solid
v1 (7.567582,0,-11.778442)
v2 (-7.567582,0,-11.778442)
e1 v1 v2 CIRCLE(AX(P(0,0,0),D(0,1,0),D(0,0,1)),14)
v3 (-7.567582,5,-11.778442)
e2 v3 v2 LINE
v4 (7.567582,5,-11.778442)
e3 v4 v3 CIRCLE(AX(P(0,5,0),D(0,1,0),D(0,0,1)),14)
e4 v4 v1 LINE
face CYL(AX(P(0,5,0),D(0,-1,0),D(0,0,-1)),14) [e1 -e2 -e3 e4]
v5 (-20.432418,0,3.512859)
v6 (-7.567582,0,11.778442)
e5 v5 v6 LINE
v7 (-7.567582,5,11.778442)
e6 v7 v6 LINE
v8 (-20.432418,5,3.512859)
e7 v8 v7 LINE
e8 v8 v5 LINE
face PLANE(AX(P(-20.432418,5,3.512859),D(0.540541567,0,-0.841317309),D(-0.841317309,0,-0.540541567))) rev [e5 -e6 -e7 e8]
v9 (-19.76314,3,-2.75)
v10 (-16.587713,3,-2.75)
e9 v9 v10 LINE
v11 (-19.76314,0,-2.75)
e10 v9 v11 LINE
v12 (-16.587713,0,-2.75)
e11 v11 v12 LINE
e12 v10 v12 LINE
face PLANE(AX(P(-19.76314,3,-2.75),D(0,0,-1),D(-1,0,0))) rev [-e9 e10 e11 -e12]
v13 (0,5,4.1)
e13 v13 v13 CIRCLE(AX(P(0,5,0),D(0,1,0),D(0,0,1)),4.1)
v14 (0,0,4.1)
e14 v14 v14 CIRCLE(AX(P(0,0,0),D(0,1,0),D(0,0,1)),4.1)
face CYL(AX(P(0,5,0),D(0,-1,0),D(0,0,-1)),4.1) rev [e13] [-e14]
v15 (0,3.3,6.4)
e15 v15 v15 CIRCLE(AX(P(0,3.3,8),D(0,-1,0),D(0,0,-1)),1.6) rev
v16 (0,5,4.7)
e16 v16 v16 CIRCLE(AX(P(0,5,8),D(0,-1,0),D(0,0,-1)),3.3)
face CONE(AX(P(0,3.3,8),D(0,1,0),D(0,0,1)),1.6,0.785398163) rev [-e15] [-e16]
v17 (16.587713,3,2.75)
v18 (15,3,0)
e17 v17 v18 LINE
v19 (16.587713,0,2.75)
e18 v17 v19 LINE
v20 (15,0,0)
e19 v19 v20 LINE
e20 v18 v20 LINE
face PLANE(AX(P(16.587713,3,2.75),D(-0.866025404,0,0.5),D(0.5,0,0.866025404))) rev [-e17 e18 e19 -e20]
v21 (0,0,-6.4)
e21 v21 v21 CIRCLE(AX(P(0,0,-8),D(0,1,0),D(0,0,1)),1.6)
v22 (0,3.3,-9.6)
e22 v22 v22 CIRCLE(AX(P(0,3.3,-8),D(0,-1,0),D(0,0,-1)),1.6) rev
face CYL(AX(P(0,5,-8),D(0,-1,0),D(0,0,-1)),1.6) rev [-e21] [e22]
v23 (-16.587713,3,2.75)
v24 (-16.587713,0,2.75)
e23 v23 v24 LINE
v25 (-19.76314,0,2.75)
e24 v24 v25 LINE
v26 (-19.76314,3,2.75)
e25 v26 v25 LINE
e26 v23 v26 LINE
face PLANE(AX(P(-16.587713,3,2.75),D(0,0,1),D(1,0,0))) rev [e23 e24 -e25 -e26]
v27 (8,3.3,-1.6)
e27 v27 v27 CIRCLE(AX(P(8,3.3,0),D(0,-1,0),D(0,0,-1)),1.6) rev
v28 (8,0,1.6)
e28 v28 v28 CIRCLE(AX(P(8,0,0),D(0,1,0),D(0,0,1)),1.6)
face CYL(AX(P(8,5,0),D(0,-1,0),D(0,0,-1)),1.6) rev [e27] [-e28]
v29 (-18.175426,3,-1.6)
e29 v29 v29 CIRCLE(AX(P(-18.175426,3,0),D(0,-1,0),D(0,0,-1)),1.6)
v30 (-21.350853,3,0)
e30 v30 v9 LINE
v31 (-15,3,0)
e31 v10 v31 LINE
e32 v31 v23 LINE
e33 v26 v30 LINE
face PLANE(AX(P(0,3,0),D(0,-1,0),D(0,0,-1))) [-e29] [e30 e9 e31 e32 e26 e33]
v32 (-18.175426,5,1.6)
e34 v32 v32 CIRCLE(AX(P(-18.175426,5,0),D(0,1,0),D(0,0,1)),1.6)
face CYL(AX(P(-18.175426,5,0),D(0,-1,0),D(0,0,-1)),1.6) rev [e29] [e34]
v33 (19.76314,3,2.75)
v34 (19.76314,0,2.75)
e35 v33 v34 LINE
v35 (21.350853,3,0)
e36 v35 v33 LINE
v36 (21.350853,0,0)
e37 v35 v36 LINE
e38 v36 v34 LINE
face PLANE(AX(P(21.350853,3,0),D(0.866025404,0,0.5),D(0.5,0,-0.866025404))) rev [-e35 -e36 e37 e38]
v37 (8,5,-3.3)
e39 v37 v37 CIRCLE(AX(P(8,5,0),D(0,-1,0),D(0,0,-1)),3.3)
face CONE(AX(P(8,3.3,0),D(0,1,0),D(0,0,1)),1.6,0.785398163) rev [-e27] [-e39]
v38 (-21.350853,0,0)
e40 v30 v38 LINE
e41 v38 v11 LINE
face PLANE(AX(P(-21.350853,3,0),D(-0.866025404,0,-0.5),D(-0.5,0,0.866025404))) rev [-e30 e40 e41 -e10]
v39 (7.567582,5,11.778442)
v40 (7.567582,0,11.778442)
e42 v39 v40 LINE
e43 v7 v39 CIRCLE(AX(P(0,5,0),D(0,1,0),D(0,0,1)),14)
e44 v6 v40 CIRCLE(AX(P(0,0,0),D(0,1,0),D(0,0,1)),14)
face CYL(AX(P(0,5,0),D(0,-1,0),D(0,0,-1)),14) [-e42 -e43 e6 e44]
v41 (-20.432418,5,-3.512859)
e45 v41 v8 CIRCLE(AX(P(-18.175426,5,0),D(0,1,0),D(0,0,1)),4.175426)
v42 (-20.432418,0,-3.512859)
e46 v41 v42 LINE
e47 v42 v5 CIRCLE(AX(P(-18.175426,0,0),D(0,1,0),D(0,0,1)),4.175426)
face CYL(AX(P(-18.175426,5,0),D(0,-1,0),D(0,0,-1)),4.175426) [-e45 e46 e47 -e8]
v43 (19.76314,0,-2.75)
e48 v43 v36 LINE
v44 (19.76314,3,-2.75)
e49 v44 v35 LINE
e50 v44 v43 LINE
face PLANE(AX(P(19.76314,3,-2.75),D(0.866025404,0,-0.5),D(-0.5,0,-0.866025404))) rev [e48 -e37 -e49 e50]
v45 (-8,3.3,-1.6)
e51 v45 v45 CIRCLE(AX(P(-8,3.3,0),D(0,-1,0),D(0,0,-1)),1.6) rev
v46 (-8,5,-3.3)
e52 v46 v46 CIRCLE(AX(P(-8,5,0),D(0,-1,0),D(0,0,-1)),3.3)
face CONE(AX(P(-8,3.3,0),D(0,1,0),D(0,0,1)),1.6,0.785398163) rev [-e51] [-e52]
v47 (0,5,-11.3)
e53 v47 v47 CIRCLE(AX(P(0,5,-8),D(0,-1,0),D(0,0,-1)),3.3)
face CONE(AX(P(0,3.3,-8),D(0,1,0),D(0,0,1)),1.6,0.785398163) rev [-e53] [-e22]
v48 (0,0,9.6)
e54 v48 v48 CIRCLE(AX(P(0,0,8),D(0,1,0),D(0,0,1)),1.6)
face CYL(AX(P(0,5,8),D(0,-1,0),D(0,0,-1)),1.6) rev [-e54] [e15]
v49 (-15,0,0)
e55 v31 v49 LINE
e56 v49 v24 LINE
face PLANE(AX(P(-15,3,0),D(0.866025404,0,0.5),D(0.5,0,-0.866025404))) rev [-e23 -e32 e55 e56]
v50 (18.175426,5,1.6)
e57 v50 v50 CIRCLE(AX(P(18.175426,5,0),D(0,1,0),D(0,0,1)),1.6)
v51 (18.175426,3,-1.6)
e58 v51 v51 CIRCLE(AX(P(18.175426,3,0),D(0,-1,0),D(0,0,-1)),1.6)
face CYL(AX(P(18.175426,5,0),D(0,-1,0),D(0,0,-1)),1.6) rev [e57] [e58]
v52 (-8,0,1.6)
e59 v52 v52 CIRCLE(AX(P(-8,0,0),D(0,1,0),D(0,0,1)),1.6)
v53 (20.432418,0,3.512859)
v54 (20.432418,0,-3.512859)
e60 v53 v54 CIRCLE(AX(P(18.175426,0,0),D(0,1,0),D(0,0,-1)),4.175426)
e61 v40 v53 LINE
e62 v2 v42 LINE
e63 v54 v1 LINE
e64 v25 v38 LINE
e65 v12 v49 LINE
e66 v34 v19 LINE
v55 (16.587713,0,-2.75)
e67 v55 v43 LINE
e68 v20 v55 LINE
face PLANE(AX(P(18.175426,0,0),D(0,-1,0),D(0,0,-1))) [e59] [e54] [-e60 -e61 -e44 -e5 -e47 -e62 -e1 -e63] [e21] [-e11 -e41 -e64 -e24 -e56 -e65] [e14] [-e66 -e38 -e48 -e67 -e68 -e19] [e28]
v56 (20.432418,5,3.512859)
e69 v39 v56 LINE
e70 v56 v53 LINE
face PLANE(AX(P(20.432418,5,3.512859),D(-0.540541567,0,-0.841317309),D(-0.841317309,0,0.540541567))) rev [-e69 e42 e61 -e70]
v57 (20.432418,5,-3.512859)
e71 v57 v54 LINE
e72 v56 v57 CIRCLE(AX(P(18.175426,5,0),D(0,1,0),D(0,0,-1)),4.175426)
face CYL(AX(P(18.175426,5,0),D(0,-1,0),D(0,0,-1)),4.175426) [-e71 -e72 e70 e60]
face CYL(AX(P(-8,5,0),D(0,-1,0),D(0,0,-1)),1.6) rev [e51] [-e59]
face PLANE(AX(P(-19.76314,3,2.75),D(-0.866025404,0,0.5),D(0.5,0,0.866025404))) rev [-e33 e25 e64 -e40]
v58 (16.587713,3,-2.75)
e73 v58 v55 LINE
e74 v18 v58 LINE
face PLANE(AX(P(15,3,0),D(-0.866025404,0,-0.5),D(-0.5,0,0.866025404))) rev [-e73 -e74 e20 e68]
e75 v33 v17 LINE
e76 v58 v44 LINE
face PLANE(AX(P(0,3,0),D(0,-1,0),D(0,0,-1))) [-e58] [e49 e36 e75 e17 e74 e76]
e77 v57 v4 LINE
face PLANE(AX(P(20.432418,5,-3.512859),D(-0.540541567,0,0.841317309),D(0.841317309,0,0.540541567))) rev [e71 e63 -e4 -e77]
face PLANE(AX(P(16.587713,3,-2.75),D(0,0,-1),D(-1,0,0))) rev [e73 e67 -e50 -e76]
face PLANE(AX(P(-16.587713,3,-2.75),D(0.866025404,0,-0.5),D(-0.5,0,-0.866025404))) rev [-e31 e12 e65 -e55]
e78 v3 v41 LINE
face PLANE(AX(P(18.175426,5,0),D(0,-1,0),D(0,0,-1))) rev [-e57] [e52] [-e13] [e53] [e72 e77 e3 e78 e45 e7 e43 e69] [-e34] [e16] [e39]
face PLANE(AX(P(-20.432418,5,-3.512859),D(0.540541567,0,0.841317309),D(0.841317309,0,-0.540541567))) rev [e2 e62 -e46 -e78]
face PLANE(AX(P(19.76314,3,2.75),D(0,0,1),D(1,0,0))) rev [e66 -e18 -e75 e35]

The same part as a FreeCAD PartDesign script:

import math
import FreeCAD as App
import Part
import Sketcher

V = App.Vector
Q = App.Units.Quantity


def edges_at(feature, points):
    """Names of the edges that pass closest to the given points."""
    edges = feature.Shape.Edges
    near = lambda p: min(range(len(edges)), key=lambda i: edges[i].distToShape(Part.Vertex(*p))[0])
    return sorted({f"Edge{near(p) + 1}" for p in points})


def add_polygon(sketch, points):
    """Adds a closed chain of lines whose ends are joined by coincident constraints."""
    first, n = sketch.GeometryCount, len(points)
    for a, b in zip(points, points[1:] + points[:1]):
        sketch.addGeometry(Part.LineSegment(App.Vector(*a, 0), App.Vector(*b, 0)), False)
    for i in range(n):
        sketch.addConstraint(Sketcher.Constraint("Coincident", first + i, 2, first + (i + 1) % n, 1))

doc = App.newDocument("Part")
body = doc.addObject("PartDesign::Body", "Body")

sketch1 = doc.addObject("Sketcher::SketchObject", "Sketch")
body.addObject(sketch1)
sketch1.AttachmentSupport = (doc.XZ_Plane, [""])
sketch1.MapMode = "FlatFace"
sketch1.addGeometry([
    Part.LineSegment(V(-7.6, -11.8, 0), V(-20.4, -3.5, 0)),
    Part.ArcOfCircle(Part.Circle(V(-18.2, 0, 0), V(0, 0, 1), 4.2), math.radians(123), math.radians(237)),
    Part.LineSegment(V(-20.4, 3.5, 0), V(-7.6, 11.8, 0)),
    Part.ArcOfCircle(Part.Circle(V(0, 0, 0), V(0, 0, 1), 14), math.radians(57), math.radians(123)),
    Part.LineSegment(V(7.6, 11.8, 0), V(20.4, 3.5, 0)),
    Part.ArcOfCircle(Part.Circle(V(18.2, 0, 0), V(0, 0, 1), 4.2), math.radians(-57), math.radians(57)),
    Part.LineSegment(V(20.4, -3.5, 0), V(7.6, -11.8, 0)),
    Part.ArcOfCircle(Part.Circle(V(0, 0, 0), V(0, 0, 1), 14), math.radians(-123), math.radians(-57)),
    Part.Circle(V(0, 8, 0), V(0, 0, 1), 1.6),
    Part.Circle(V(18.2, 0, 0), V(0, 0, 1), 1.6),
    Part.Circle(V(8, 0, 0), V(0, 0, 1), 1.6),
    Part.Circle(V(0, 0, 0), V(0, 0, 1), 4.1),
    Part.Circle(V(-8, 0, 0), V(0, 0, 1), 1.6),
    Part.Circle(V(-18.2, 0, 0), V(0, 0, 1), 1.6),
    Part.Circle(V(0, -8, 0), V(0, 0, 1), 1.6),
], False)
sketch1.addConstraint([
    Sketcher.Constraint("Tangent", 0, 2, 1, 2),
    Sketcher.Constraint("Tangent", 1, 1, 2, 1),
    Sketcher.Constraint("Tangent", 2, 2, 3, 2),
    Sketcher.Constraint("Tangent", 3, 1, 4, 1),
    Sketcher.Constraint("Tangent", 4, 2, 5, 2),
    Sketcher.Constraint("Tangent", 5, 1, 6, 1),
    Sketcher.Constraint("Tangent", 6, 2, 7, 2),
    Sketcher.Constraint("Tangent", 7, 1, 0, 1),
    Sketcher.Constraint("Coincident", 3, 3, -1, 1),
    Sketcher.Constraint("Coincident", 7, 3, -1, 1),
    Sketcher.Constraint("Coincident", 11, 3, -1, 1),
    Sketcher.Constraint("Coincident", 9, 3, 5, 3),
    Sketcher.Constraint("Coincident", 13, 3, 1, 3),
    Sketcher.Constraint("Equal", 1, 5),
    Sketcher.Constraint("Equal", 3, 7),
    Sketcher.Constraint("Equal", 8, 9),
    Sketcher.Constraint("Equal", 9, 10),
    Sketcher.Constraint("Equal", 10, 12),
    Sketcher.Constraint("Equal", 12, 13),
    Sketcher.Constraint("Equal", 13, 14),
    Sketcher.Constraint("Symmetric", 1, 3, 5, 3, -1, 1),
    Sketcher.Constraint("Symmetric", 10, 3, 12, 3, -1, 1),
    Sketcher.Constraint("Symmetric", 8, 3, 14, 3, -1, 1),
    Sketcher.Constraint("PointOnObject", 1, 3, -1),
    Sketcher.Constraint("PointOnObject", 8, 3, -2),
    Sketcher.Constraint("PointOnObject", 10, 3, -1),
    Sketcher.Constraint("Radius", 3, Q("14 mm")),
    Sketcher.Constraint("Diameter", 8, Q("3.2 mm")),
    Sketcher.Constraint("Diameter", 11, Q("8.2 mm")),
    Sketcher.Constraint("DistanceY", -1, 1, 8, 3, Q("8 mm")),
    Sketcher.Constraint("DistanceX", -1, 1, 10, 3, Q("8 mm")),
    Sketcher.Constraint("Radius", 1, Q("4.175426 mm")),
    Sketcher.Constraint("Distance", 0, Q("15.291301 mm")),
])
pad1 = doc.addObject("PartDesign::Pad", "Pad")
body.addObject(pad1)
pad1.Profile = sketch1
pad1.Length = 5
pad1.Reversed = True
doc.recompute()

chamfer = doc.addObject("PartDesign::Chamfer", "Chamfer")
body.addObject(chamfer)
chamfer.Base = (pad1, edges_at(pad1, [
    (0, 5, -9.6),
    (8, 5, -1.6),
    (0, 5, 6.4),
    (-8, 5, -1.6),
]))
chamfer.Size = 1.7

sketch2 = doc.addObject("Sketcher::SketchObject", "Sketch001")
body.addObject(sketch2)
sketch2.AttachmentSupport = (doc.XZ_Plane, [""])
sketch2.MapMode = "FlatFace"
add_polygon(sketch2, [(-15, 0), (-16.6, 2.8), (-19.8, 2.8), (-21.4, 0), (-19.8, -2.8), (-16.6, -2.8)])
add_polygon(sketch2, [(15, 0), (16.6, -2.8), (19.8, -2.8), (21.4, 0), (19.8, 2.8), (16.6, 2.8)])
sketch2.addConstraint([
    Sketcher.Constraint("Horizontal", 1),
    Sketcher.Constraint("Horizontal", 4),
    Sketcher.Constraint("Horizontal", 7),
    Sketcher.Constraint("Horizontal", 10),
    Sketcher.Constraint("Symmetric", 0, 2, 6, 2, -1, 1),
    Sketcher.Constraint("Symmetric", 2, 2, 8, 2, -1, 1),
    Sketcher.Constraint("Symmetric", 3, 2, 9, 2, -1, 1),
    Sketcher.Constraint("Symmetric", 5, 2, 11, 2, -1, 1),
    Sketcher.Constraint("Symmetric", 4, 2, 6, 2, -2),
    Sketcher.Constraint("PointOnObject", 2, 2, -1),
    Sketcher.Constraint("PointOnObject", 5, 2, -1),
    Sketcher.Constraint("Parallel", 0, 3),
    Sketcher.Constraint("Parallel", 2, 5),
    Sketcher.Constraint("Parallel", 5, 8),
    Sketcher.Constraint("Parallel", 8, 11),
    Sketcher.Constraint("Angle", 0, Q("120 deg")),
    Sketcher.Constraint("DistanceX", 5, 2, -1, 1, Q("15 mm")),
    Sketcher.Constraint("DistanceY", 3, 2, 1, 2, Q("5.5 mm")),
    Sketcher.Constraint("DistanceX", 1, 2, 1, 1, Q("3.175426 mm")),
])
pocket1 = doc.addObject("PartDesign::Pocket", "Pocket")
body.addObject(pocket1)
pocket1.Profile = sketch2
pocket1.Length = 3

doc.recompute()
